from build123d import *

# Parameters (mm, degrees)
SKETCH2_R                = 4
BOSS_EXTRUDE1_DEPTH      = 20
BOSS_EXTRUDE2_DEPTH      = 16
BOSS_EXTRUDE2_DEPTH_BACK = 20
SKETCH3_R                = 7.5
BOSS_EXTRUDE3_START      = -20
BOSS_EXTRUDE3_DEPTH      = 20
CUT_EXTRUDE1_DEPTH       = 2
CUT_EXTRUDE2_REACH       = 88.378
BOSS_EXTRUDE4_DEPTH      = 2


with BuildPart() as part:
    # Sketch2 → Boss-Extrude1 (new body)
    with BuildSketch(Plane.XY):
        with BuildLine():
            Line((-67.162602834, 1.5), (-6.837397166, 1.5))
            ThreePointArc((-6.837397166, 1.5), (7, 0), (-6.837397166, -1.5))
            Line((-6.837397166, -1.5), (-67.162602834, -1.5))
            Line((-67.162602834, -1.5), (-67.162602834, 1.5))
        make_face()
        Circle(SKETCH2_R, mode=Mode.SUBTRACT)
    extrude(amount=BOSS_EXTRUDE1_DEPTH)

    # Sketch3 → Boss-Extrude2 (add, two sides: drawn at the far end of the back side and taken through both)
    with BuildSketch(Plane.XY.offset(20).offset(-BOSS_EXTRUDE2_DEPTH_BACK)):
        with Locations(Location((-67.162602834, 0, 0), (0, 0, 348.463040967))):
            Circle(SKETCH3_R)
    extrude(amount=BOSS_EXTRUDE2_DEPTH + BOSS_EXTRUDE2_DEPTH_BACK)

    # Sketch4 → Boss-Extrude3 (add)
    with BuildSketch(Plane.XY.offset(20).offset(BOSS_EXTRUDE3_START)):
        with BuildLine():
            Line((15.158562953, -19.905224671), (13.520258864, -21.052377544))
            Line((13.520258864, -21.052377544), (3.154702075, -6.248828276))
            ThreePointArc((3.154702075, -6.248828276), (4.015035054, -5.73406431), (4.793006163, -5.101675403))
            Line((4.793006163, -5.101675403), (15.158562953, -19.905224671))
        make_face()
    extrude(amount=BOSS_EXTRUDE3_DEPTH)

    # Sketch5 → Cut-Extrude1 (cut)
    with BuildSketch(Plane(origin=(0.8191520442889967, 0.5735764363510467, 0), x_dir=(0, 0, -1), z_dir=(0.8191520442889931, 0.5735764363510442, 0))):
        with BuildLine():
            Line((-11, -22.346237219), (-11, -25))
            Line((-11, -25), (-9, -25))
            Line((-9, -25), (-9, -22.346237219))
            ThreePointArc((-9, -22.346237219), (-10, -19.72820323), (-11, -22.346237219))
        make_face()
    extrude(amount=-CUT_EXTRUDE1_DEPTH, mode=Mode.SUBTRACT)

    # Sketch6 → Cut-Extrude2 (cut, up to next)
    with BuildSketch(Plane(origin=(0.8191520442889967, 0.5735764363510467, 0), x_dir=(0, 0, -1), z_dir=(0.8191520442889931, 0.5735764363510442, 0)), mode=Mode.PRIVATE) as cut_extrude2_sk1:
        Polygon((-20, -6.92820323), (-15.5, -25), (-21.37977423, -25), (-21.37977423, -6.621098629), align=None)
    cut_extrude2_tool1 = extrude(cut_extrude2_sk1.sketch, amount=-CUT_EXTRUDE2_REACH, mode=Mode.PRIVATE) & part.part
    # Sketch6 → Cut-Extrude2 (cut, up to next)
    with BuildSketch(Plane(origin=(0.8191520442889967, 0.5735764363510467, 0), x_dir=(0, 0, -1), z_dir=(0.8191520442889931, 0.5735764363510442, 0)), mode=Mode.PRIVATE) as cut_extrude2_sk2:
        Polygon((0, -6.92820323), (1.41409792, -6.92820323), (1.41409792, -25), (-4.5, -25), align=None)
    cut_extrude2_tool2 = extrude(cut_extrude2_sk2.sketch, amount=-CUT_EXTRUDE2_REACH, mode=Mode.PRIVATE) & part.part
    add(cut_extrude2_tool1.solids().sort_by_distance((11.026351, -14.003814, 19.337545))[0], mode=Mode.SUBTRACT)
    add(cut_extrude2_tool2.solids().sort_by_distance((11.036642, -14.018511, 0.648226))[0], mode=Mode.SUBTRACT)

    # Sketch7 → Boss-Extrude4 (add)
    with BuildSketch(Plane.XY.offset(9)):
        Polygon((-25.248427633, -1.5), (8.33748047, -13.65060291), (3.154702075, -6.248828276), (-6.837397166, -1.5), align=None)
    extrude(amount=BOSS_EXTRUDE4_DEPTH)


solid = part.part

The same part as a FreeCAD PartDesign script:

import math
import FreeCAD as App
import Part
import Sketcher
from FreeCAD import Vector
Q = App.Units.Quantity


def add_polygon(sketch, points):
    """Adds a closed chain of lines whose ends are joined by coincident constraints."""
    first, n = sketch.GeometryCount, len(points)
    for a, b in zip(points, points[1:] + points[:1]):
        sketch.addGeometry(Part.LineSegment(App.Vector(*a, 0), App.Vector(*b, 0)), False)
    for i in range(n):
        sketch.addConstraint(Sketcher.Constraint("Coincident", first + i, 2, first + (i + 1) % n, 1))

doc = App.newDocument("Part")
body = doc.addObject("PartDesign::Body", "Body")

sketch1 = doc.addObject("Sketcher::SketchObject", "Sketch")
body.addObject(sketch1)
sketch1.AttachmentSupport = (doc.XY_Plane, [""])
sketch1.MapMode = "FlatFace"
sketch1.addGeometry(Part.LineSegment(Vector(-6.8, 1.5, 0), Vector(-67.2, 1.5, 0)), False)
sketch1.addGeometry(Part.LineSegment(Vector(-67.2, 1.5, 0), Vector(-67.2, -1.5, 0)), False)
sketch1.addGeometry(Part.LineSegment(Vector(-67.2, -1.5, 0), Vector(-6.8, -1.5, 0)), False)
sketch1.addGeometry(Part.ArcOfCircle(Part.Circle(Vector(0, 0, 0), Vector(0, 0, 1), 7), math.radians(-168), math.radians(168)), False)
sketch1.addGeometry(Part.Circle(Vector(0, 0, 0), Vector(0, 0, 1), 4), False)
sketch1.addConstraint(Sketcher.Constraint("Coincident", 0, 2, 1, 1))
sketch1.addConstraint(Sketcher.Constraint("Coincident", 1, 2, 2, 1))
sketch1.addConstraint(Sketcher.Constraint("Coincident", 2, 2, 3, 1))
sketch1.addConstraint(Sketcher.Constraint("Coincident", 3, 2, 0, 1))
sketch1.addConstraint(Sketcher.Constraint("Horizontal", 0))
sketch1.addConstraint(Sketcher.Constraint("Vertical", 1))
sketch1.addConstraint(Sketcher.Constraint("Horizontal", 2))
sketch1.addConstraint(Sketcher.Constraint("Coincident", 3, 3, -1, 1))
sketch1.addConstraint(Sketcher.Constraint("Coincident", 4, 3, -1, 1))
sketch1.addConstraint(Sketcher.Constraint("Vertical", 2, 2, 3, 2))
sketch1.addConstraint(Sketcher.Constraint("Diameter", 4, Q("8 mm")))
sketch1.addConstraint(Sketcher.Constraint("Radius", 3, Q("7 mm")))
sketch1.addConstraint(Sketcher.Constraint("DistanceY", 1, 2, 1, 1, Q("3 mm")))
sketch1.addConstraint(Sketcher.Constraint("DistanceX", 0, 2, 0, 1, Q("60.325206 mm")))
pad1 = doc.addObject("PartDesign::Pad", "Pad")
body.addObject(pad1)
pad1.Profile = sketch1
pad1.Length = 20

sketch2 = doc.addObject("Sketcher::SketchObject", "Sketch001")
body.addObject(sketch2)
sketch2.AttachmentSupport = (doc.XY_Plane, [""])
sketch2.MapMode = "FlatFace"
sketch2.AttachmentOffset = App.Placement(Vector(0, 0, 20), App.Rotation())
sketch2.addGeometry(Part.Circle(Vector(-67, 0, 0), Vector(0, 0, 1), 8), False)
sketch2.addConstraint(Sketcher.Constraint("PointOnObject", 0, 3, -1))
sketch2.addConstraint(Sketcher.Constraint("Diameter", 0, Q("15 mm")))
sketch2.addConstraint(Sketcher.Constraint("DistanceX", 0, 3, -1, 1, Q("67.162603 mm")))
pad2 = doc.addObject("PartDesign::Pad", "Pad001")
body.addObject(pad2)
pad2.Profile = sketch2
pad2.Type = "TwoLengths"
pad2.Length = 16
pad2.Length2 = 20

sketch3 = doc.addObject("Sketcher::SketchObject", "Sketch002")
body.addObject(sketch3)
sketch3.AttachmentSupport = (doc.XY_Plane, [""])
sketch3.MapMode = "FlatFace"
sketch3.addGeometry(Part.LineSegment(Vector(13.5, -21.1, 0), Vector(15.2, -19.9, 0)), False)
sketch3.addGeometry(Part.LineSegment(Vector(15.2, -19.9, 0), Vector(4.8, -5.1, 0)), False)
sketch3.addGeometry(Part.ArcOfCircle(Part.Circle(Vector(0, 0, 0), Vector(0, 0, 1), 7), math.radians(-63.21), math.radians(-46.79)), False)
sketch3.addGeometry(Part.LineSegment(Vector(3.2, -6.2, 0), Vector(13.5, -21.1, 0)), False)
sketch3.addConstraint(Sketcher.Constraint("Coincident", 0, 2, 1, 1))
sketch3.addConstraint(Sketcher.Constraint("Coincident", 1, 2, 2, 2))
sketch3.addConstraint(Sketcher.Constraint("Coincident", 2, 1, 3, 1))
sketch3.addConstraint(Sketcher.Constraint("Coincident", 3, 2, 0, 1))
sketch3.addConstraint(Sketcher.Constraint("Coincident", 2, 3, -1, 1))
sketch3.addConstraint(Sketcher.Constraint("Perpendicular", 0, 1))
sketch3.addConstraint(Sketcher.Constraint("Parallel", 1, 3))
sketch3.addConstraint(Sketcher.Constraint("Equal", 1, 3))
sketch3.addConstraint(Sketcher.Constraint("Radius", 2, Q("7 mm")))
sketch3.addConstraint(Sketcher.Constraint("Angle", 0, Q("35 deg")))
sketch3.addConstraint(Sketcher.Constraint("Distance", 0, Q("2 mm")))
sketch3.addConstraint(Sketcher.Constraint("DistanceX", -1, 1, 3, 2, Q("13.520259 mm")))
pad3 = doc.addObject("PartDesign::Pad", "Pad002")
body.addObject(pad3)
pad3.Profile = sketch3
pad3.Length = 20

sketch4 = doc.addObject("Sketcher::SketchObject", "Sketch003")
body.addObject(sketch4)
sketch4.Placement = App.Placement(Vector(0.819152, 0.573576, 0), App.Rotation(Vector(0, 0, -1), Vector(-0.573576436, 0.819152044, 0), Vector(0.819152044, 0.573576436, 0), "ZXY"))
sketch4.addGeometry(Part.LineSegment(Vector(-11, -22.3, 0), Vector(-11, -25, 0)), False)
sketch4.addGeometry(Part.LineSegment(Vector(-11, -25, 0), Vector(-9, -25, 0)), False)
sketch4.addGeometry(Part.LineSegment(Vector(-9, -25, 0), Vector(-9, -22.3, 0)), False)
sketch4.addGeometry(Part.ArcOfCircle(Part.Circle(Vector(-10, -21.2, 0), Vector(0, 0, 1), 1.5), math.radians(-48), math.radians(228)), False)
sketch4.addConstraint(Sketcher.Constraint("Coincident", 0, 2, 1, 1))
sketch4.addConstraint(Sketcher.Constraint("Coincident", 1, 2, 2, 1))
sketch4.addConstraint(Sketcher.Constraint("Coincident", 2, 2, 3, 1))
sketch4.addConstraint(Sketcher.Constraint("Coincident", 3, 2, 0, 1))
sketch4.addConstraint(Sketcher.Constraint("Vertical", 0))
sketch4.addConstraint(Sketcher.Constraint("Horizontal", 1))
sketch4.addConstraint(Sketcher.Constraint("Vertical", 2))
sketch4.addConstraint(Sketcher.Constraint("Horizontal", 2, 2, 3, 2))
sketch4.addConstraint(Sketcher.Constraint("Radius", 3, Q("1.5 mm")))
sketch4.addConstraint(Sketcher.Constraint("DistanceX", 1, 1, 1, 2, Q("2 mm")))
sketch4.addConstraint(Sketcher.Constraint("DistanceX", 3, 3, -1, 1, Q("10 mm")))
sketch4.addConstraint(Sketcher.Constraint("DistanceY", 0, 2, -1, 1, Q("25 mm")))
sketch4.addConstraint(Sketcher.Constraint("DistanceY", 0, 2, 0, 1, Q("2.653763 mm")))
pocket1 = doc.addObject("PartDesign::Pocket", "Pocket")
body.addObject(pocket1)
pocket1.Profile = sketch4
pocket1.Length = 2

sketch5 = doc.addObject("Sketcher::SketchObject", "Sketch004")
body.addObject(sketch5)
sketch5.Placement = App.Placement(Vector(0.819152, 0.573576, 0), App.Rotation(Vector(0, 0, -1), Vector(-0.573576436, 0.819152044, 0), Vector(0.819152044, 0.573576436, 0), "ZXY"))
add_polygon(sketch5, [(-15.5, -25), (-20, -6.9), (-21.4, -6.6), (-21.4, -25)])
sketch5.addConstraint(Sketcher.Constraint("Vertical", 2))
sketch5.addConstraint(Sketcher.Constraint("Horizontal", 3))
sketch5.addConstraint(Sketcher.Constraint("DistanceX", 0, 2, -1, 1, Q("20 mm")))
sketch5.addConstraint(Sketcher.Constraint("DistanceY", 2, 2, -1, 1, Q("25 mm")))
sketch5.addConstraint(Sketcher.Constraint("DistanceX", 3, 2, -1, 1, Q("15.5 mm")))
sketch5.addConstraint(Sketcher.Constraint("DistanceY", 2, 2, 2, 1, Q("18.378901 mm")))
sketch5.addConstraint(Sketcher.Constraint("Distance", 1, Q("1.413538 mm")))
sketch5.addConstraint(Sketcher.Constraint("DistanceX", 3, 1, 3, 2, Q("5.879774 mm")))
pocket2 = doc.addObject("PartDesign::Pocket", "Pocket001")
body.addObject(pocket2)
pocket2.Profile = sketch5
pocket2.Type = "UpToFirst"

sketch6 = doc.addObject("Sketcher::SketchObject", "Sketch005")
body.addObject(sketch6)
sketch6.Placement = App.Placement(Vector(0.819152, 0.573576, 0), App.Rotation(Vector(0, 0, -1), Vector(-0.573576436, 0.819152044, 0), Vector(0.819152044, 0.573576436, 0), "ZXY"))
add_polygon(sketch6, [(1.4, -6.9), (0, -6.9), (-4.5, -25), (1.4, -25)])
sketch6.addConstraint(Sketcher.Constraint("Horizontal", 0))
sketch6.addConstraint(Sketcher.Constraint("Horizontal", 2))
sketch6.addConstraint(Sketcher.Constraint("Vertical", 3))
sketch6.addConstraint(Sketcher.Constraint("PointOnObject", 0, 2, -2))
sketch6.addConstraint(Sketcher.Constraint("DistanceY", 1, 2, -1, 1, Q("25 mm")))
sketch6.addConstraint(Sketcher.Constraint("DistanceX", 1, 2, -1, 1, Q("4.5 mm")))
sketch6.addConstraint(Sketcher.Constraint("DistanceX", 0, 2, 0, 1, Q("1.414098 mm")))
sketch6.addConstraint(Sketcher.Constraint("DistanceY", 3, 1, 3, 2, Q("18.071797 mm")))
pocket3 = doc.addObject("PartDesign::Pocket", "Pocket002")
body.addObject(pocket3)
pocket3.Profile = sketch6
pocket3.Type = "UpToFirst"

sketch7 = doc.addObject("Sketcher::SketchObject", "Sketch006")
body.addObject(sketch7)
sketch7.AttachmentSupport = (doc.XY_Plane, [""])
sketch7.MapMode = "FlatFace"
sketch7.AttachmentOffset = App.Placement(Vector(0, 0, 9), App.Rotation())
add_polygon(sketch7, [(-25, -2), (8, -14), (3, -6), (-7, -2)])
sketch7.addConstraint(Sketcher.Constraint("Horizontal", 3))
sketch7.addConstraint(Sketcher.Constraint("Angle", 1, Q("125 deg")))
sketch7.addConstraint(Sketcher.Constraint("DistanceY", 2, 2, -1, 1, Q("1.5 mm")))
sketch7.addConstraint(Sketcher.Constraint("Distance", 1, Q("9.035898 mm")))
sketch7.addConstraint(Sketcher.Constraint("DistanceX", 3, 2, 3, 1, Q("18.41103 mm")))
sketch7.addConstraint(Sketcher.Constraint("DistanceX", 2, 2, 1, 2, Q("9.992099 mm")))
sketch7.addConstraint(Sketcher.Constraint("Distance", 0, Q("35.716248 mm")))
sketch7.addConstraint(Sketcher.Constraint("DistanceX", -1, 1, 0, 2, Q("8.33748 mm")))
pad4 = doc.addObject("PartDesign::Pad", "Pad003")
body.addObject(pad4)
pad4.Profile = sketch7
pad4.Length = 2

doc.recompute()
